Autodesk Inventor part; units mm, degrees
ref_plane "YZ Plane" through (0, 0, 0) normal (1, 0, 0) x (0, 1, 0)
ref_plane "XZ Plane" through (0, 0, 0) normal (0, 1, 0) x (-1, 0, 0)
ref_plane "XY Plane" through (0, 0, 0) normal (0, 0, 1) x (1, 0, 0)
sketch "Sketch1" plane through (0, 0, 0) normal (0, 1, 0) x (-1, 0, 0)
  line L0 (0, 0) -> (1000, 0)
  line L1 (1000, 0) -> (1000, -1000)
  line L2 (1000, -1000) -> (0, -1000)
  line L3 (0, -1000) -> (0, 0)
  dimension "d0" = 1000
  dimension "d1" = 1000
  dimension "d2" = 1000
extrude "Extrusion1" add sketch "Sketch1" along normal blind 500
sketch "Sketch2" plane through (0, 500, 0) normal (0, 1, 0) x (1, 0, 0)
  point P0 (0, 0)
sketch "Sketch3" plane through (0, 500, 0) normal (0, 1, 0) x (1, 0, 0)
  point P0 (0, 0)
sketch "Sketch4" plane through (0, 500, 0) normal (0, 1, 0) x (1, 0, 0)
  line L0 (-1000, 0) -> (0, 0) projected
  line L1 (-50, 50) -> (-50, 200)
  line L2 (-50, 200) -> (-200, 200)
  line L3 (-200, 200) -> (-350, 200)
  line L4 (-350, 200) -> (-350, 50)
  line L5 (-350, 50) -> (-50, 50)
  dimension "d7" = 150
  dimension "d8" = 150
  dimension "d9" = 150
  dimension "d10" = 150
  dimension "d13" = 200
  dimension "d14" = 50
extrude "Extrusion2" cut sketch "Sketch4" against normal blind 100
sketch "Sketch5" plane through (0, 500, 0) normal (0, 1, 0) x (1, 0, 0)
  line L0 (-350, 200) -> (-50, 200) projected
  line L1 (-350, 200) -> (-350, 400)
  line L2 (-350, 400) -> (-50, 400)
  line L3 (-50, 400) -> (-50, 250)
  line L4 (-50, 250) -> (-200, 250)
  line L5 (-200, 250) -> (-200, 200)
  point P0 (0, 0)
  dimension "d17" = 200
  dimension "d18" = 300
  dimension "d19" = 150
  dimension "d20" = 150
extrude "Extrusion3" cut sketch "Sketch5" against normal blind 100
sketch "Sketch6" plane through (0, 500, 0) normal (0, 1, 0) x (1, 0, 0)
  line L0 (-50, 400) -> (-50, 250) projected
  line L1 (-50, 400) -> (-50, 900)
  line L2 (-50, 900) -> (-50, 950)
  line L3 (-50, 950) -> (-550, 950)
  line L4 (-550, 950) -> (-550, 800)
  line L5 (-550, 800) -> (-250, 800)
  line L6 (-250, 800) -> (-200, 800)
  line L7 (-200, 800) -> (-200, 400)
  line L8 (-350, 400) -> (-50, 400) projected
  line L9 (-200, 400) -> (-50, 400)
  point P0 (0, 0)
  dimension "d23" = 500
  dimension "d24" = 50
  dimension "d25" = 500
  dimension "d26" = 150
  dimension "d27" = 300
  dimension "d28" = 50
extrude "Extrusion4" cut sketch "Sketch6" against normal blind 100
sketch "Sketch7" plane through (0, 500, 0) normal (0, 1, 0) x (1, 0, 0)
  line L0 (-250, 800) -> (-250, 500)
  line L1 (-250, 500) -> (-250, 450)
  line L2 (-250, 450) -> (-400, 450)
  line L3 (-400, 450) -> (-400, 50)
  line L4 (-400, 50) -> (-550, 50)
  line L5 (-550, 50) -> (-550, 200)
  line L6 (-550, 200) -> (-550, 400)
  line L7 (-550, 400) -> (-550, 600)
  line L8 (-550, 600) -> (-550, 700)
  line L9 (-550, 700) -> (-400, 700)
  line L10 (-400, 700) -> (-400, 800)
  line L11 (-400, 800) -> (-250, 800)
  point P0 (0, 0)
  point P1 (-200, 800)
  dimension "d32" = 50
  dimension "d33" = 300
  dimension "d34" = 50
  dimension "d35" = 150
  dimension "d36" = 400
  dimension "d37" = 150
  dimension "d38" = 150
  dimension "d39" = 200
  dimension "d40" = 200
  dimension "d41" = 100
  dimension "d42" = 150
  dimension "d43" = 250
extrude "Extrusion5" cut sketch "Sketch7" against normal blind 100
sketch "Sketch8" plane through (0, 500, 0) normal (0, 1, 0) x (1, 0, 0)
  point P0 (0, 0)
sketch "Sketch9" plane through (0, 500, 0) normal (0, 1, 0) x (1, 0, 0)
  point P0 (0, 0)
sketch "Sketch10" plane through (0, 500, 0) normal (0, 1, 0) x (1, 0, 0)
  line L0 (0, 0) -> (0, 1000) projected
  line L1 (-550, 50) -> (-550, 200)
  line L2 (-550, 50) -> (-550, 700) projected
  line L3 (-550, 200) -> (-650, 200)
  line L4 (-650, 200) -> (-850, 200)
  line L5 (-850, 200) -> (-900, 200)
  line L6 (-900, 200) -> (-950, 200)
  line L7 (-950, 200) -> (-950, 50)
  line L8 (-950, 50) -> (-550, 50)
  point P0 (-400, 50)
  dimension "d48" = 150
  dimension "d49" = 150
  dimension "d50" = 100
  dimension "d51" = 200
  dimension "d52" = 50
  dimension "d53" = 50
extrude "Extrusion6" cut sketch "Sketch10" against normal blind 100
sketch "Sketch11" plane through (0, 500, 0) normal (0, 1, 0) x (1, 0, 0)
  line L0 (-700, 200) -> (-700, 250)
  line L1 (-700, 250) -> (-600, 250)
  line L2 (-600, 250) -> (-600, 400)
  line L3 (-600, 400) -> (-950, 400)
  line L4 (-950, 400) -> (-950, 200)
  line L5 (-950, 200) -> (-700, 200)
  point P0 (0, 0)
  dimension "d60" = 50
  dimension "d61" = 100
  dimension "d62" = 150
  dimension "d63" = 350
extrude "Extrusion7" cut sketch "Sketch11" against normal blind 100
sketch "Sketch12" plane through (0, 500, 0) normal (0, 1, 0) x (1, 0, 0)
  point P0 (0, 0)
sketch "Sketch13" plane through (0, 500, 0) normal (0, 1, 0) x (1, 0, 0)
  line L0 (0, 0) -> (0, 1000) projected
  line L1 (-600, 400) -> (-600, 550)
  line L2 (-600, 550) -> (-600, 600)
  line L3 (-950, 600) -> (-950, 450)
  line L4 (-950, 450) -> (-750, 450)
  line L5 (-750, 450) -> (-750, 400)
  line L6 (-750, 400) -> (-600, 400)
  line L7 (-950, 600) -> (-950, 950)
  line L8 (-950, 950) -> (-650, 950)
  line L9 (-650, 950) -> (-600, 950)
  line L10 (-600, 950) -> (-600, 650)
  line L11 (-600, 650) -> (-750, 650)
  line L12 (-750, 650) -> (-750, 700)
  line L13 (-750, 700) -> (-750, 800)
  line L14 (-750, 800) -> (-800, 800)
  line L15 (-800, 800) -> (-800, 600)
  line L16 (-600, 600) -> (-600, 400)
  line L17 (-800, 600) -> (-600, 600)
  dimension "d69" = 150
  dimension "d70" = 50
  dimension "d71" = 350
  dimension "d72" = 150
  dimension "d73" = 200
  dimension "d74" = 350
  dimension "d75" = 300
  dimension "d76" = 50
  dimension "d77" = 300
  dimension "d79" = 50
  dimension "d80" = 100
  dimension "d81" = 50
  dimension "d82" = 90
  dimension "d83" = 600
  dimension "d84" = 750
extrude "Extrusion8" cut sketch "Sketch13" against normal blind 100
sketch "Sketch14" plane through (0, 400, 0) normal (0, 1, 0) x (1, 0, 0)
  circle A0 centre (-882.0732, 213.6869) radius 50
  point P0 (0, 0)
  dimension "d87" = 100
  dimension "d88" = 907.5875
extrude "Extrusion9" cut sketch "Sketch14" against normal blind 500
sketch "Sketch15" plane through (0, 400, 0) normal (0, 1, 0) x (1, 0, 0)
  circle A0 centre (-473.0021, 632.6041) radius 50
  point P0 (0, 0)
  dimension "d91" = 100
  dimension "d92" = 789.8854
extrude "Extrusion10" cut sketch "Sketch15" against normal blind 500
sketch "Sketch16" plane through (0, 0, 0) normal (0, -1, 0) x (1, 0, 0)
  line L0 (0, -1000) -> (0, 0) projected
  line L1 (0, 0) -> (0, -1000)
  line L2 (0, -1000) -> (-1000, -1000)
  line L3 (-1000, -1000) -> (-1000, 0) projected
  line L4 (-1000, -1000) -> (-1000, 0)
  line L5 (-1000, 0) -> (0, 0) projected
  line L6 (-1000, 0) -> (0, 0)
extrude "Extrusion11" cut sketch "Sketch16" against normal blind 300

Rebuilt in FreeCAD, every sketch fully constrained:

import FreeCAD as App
import Part
import Sketcher
Q = App.Units.Quantity

doc = App.newDocument("Part")
body = doc.addObject("PartDesign::Body", "Body")

# Sketch on XZ plane
sketch1 = doc.addObject("Sketcher::SketchObject", "Sketch")
body.addObject(sketch1)
sketch1.AttachmentSupport = (doc.XZ_Plane, [""])
sketch1.MapMode = "FlatFace"
sketch1.addGeometry(Part.LineSegment(App.Vector(-1000, 0, 0), App.Vector(0, 0, 0)), False)
sketch1.addGeometry(Part.LineSegment(App.Vector(0, 0, 0), App.Vector(0, -1000, 0)), False)
sketch1.addGeometry(Part.LineSegment(App.Vector(0, -1000, 0), App.Vector(-1000, -1000, 0)), False)
sketch1.addGeometry(Part.LineSegment(App.Vector(-1000, -1000, 0), App.Vector(-1000, 0, 0)), False)
sketch1.addConstraint(Sketcher.Constraint("Coincident", 0, 2, 1, 1))
sketch1.addConstraint(Sketcher.Constraint("Coincident", 1, 2, 2, 1))
sketch1.addConstraint(Sketcher.Constraint("Coincident", 2, 2, 3, 1))
sketch1.addConstraint(Sketcher.Constraint("Coincident", 3, 2, 0, 1))
sketch1.addConstraint(Sketcher.Constraint("Horizontal", 0))
sketch1.addConstraint(Sketcher.Constraint("Vertical", 1))
sketch1.addConstraint(Sketcher.Constraint("Horizontal", 2))
sketch1.addConstraint(Sketcher.Constraint("Vertical", 3))
sketch1.addConstraint(Sketcher.Constraint("Coincident", 0, 2, -1, 1))
sketch1.addConstraint(Sketcher.Constraint("Equal", 2, 1))
sketch1.addConstraint(Sketcher.Constraint("DistanceX", 0, 1, 0, 2, Q("1000 mm")))
pad1 = doc.addObject("PartDesign::Pad", "Pad")
body.addObject(pad1)
pad1.Profile = sketch1
pad1.Length = 500
pad1.Reversed = True

# Sketch on XZ plane
sketch2 = doc.addObject("Sketcher::SketchObject", "Sketch001")
body.addObject(sketch2)
sketch2.AttachmentSupport = (doc.XZ_Plane, [""])
sketch2.MapMode = "FlatFace"
sketch2.AttachmentOffset = App.Placement(App.Vector(0, 0, -500), App.Rotation())
sketch2.addGeometry(Part.LineSegment(App.Vector(-350, -50, 0), App.Vector(-50, -50, 0)), False)
sketch2.addGeometry(Part.LineSegment(App.Vector(-50, -50, 0), App.Vector(-50, -200, 0)), False)
sketch2.addGeometry(Part.LineSegment(App.Vector(-50, -200, 0), App.Vector(-350, -200, 0)), False)
sketch2.addGeometry(Part.LineSegment(App.Vector(-350, -200, 0), App.Vector(-350, -50, 0)), False)
sketch2.addConstraint(Sketcher.Constraint("Coincident", 0, 2, 1, 1))
sketch2.addConstraint(Sketcher.Constraint("Coincident", 1, 2, 2, 1))
sketch2.addConstraint(Sketcher.Constraint("Coincident", 2, 2, 3, 1))
sketch2.addConstraint(Sketcher.Constraint("Coincident", 3, 2, 0, 1))
sketch2.addConstraint(Sketcher.Constraint("Horizontal", 0))
sketch2.addConstraint(Sketcher.Constraint("Vertical", 1))
sketch2.addConstraint(Sketcher.Constraint("Horizontal", 2))
sketch2.addConstraint(Sketcher.Constraint("Vertical", 3))
sketch2.addConstraint(Sketcher.Constraint("DistanceY", 1, 2, 1, 1, Q("150 mm")))
sketch2.addConstraint(Sketcher.Constraint("DistanceX", 0, 2, -1, 1, Q("50 mm")))
sketch2.addConstraint(Sketcher.Constraint("DistanceY", 0, 2, -1, 1, Q("50 mm")))
sketch2.addConstraint(Sketcher.Constraint("DistanceX", 0, 1, 0, 2, Q("300 mm")))
pocket1 = doc.addObject("PartDesign::Pocket", "Pocket")
body.addObject(pocket1)
pocket1.Profile = sketch2
pocket1.Length = 100
pocket1.Reversed = True

# Sketch on XZ plane
sketch3 = doc.addObject("Sketcher::SketchObject", "Sketch002")
body.addObject(sketch3)
sketch3.AttachmentSupport = (doc.XZ_Plane, [""])
sketch3.MapMode = "FlatFace"
sketch3.AttachmentOffset = App.Placement(App.Vector(0, 0, -500), App.Rotation())
sketch3.addGeometry(Part.LineSegment(App.Vector(-350, -400, 0), App.Vector(-350, -200, 0)), False)
sketch3.addGeometry(Part.LineSegment(App.Vector(-350, -200, 0), App.Vector(-200, -200, 0)), False)
sketch3.addGeometry(Part.LineSegment(App.Vector(-200, -200, 0), App.Vector(-200, -250, 0)), False)
sketch3.addGeometry(Part.LineSegment(App.Vector(-200, -250, 0), App.Vector(-50, -250, 0)), False)
sketch3.addGeometry(Part.LineSegment(App.Vector(-50, -250, 0), App.Vector(-50, -400, 0)), False)
sketch3.addGeometry(Part.LineSegment(App.Vector(-50, -400, 0), App.Vector(-350, -400, 0)), False)
sketch3.addConstraint(Sketcher.Constraint("Coincident", 0, 2, 1, 1))
sketch3.addConstraint(Sketcher.Constraint("Coincident", 1, 2, 2, 1))
sketch3.addConstraint(Sketcher.Constraint("Coincident", 2, 2, 3, 1))
sketch3.addConstraint(Sketcher.Constraint("Coincident", 3, 2, 4, 1))
sketch3.addConstraint(Sketcher.Constraint("Coincident", 4, 2, 5, 1))
sketch3.addConstraint(Sketcher.Constraint("Coincident", 5, 2, 0, 1))
sketch3.addConstraint(Sketcher.Constraint("Vertical", 0))
sketch3.addConstraint(Sketcher.Constraint("Horizontal", 1))
sketch3.addConstraint(Sketcher.Constraint("Vertical", 2))
sketch3.addConstraint(Sketcher.Constraint("Horizontal", 3))
sketch3.addConstraint(Sketcher.Constraint("Vertical", 4))
sketch3.addConstraint(Sketcher.Constraint("Horizontal", 5))
sketch3.addConstraint(Sketcher.Constraint("Equal", 1, 3))
sketch3.addConstraint(Sketcher.Constraint("Equal", 3, 4))
sketch3.addConstraint(Sketcher.Constraint("DistanceX", 1, 1, 1, 2, Q("150 mm")))
sketch3.addConstraint(Sketcher.Constraint("DistanceY", 0, 1, 0, 2, Q("200 mm")))
sketch3.addConstraint(Sketcher.Constraint("DistanceY", 0, 2, -1, 1, Q("200 mm")))
sketch3.addConstraint(Sketcher.Constraint("DistanceX", 1, 2, -1, 1, Q("200 mm")))
pocket2 = doc.addObject("PartDesign::Pocket", "Pocket001")
body.addObject(pocket2)
pocket2.Profile = sketch3
pocket2.Length = 100
pocket2.Reversed = True

# Sketch on XZ plane
sketch4 = doc.addObject("Sketcher::SketchObject", "Sketch003")
body.addObject(sketch4)
sketch4.AttachmentSupport = (doc.XZ_Plane, [""])
sketch4.MapMode = "FlatFace"
sketch4.AttachmentOffset = App.Placement(App.Vector(0, 0, -500), App.Rotation())
sketch4.addGeometry(Part.LineSegment(App.Vector(-200, -400, 0), App.Vector(-50, -400, 0)), False)
sketch4.addGeometry(Part.LineSegment(App.Vector(-50, -400, 0), App.Vector(-50, -950, 0)), False)
sketch4.addGeometry(Part.LineSegment(App.Vector(-50, -950, 0), App.Vector(-550, -950, 0)), False)
sketch4.addGeometry(Part.LineSegment(App.Vector(-550, -950, 0), App.Vector(-550, -800, 0)), False)
sketch4.addGeometry(Part.LineSegment(App.Vector(-550, -800, 0), App.Vector(-200, -800, 0)), False)
sketch4.addGeometry(Part.LineSegment(App.Vector(-200, -800, 0), App.Vector(-200, -400, 0)), False)
sketch4.addConstraint(Sketcher.Constraint("Coincident", 0, 2, 1, 1))
sketch4.addConstraint(Sketcher.Constraint("Coincident", 1, 2, 2, 1))
sketch4.addConstraint(Sketcher.Constraint("Coincident", 2, 2, 3, 1))
sketch4.addConstraint(Sketcher.Constraint("Coincident", 3, 2, 4, 1))
sketch4.addConstraint(Sketcher.Constraint("Coincident", 4, 2, 5, 1))
sketch4.addConstraint(Sketcher.Constraint("Coincident", 5, 2, 0, 1))
sketch4.addConstraint(Sketcher.Constraint("Horizontal", 0))
sketch4.addConstraint(Sketcher.Constraint("Vertical", 1))
sketch4.addConstraint(Sketcher.Constraint("Horizontal", 2))
sketch4.addConstraint(Sketcher.Constraint("Vertical", 3))
sketch4.addConstraint(Sketcher.Constraint("Horizontal", 4))
sketch4.addConstraint(Sketcher.Constraint("Vertical", 5))
sketch4.addConstraint(Sketcher.Constraint("Equal", 0, 3))
sketch4.addConstraint(Sketcher.Constraint("DistanceX", 0, 1, 0, 2, Q("150 mm")))
sketch4.addConstraint(Sketcher.Constraint("DistanceX", 2, 2, 2, 1, Q("500 mm")))
sketch4.addConstraint(Sketcher.Constraint("DistanceX", 0, 2, -1, 1, Q("50 mm")))
sketch4.addConstraint(Sketcher.Constraint("DistanceY", 1, 2, 1, 1, Q("550 mm")))
sketch4.addConstraint(Sketcher.Constraint("DistanceY", 0, 2, -1, 1, Q("400 mm")))
pocket3 = doc.addObject("PartDesign::Pocket", "Pocket002")
body.addObject(pocket3)
pocket3.Profile = sketch4
pocket3.Length = 100
pocket3.Reversed = True

# Sketch on XZ plane
sketch5 = doc.addObject("Sketcher::SketchObject", "Sketch004")
body.addObject(sketch5)
sketch5.AttachmentSupport = (doc.XZ_Plane, [""])
sketch5.MapMode = "FlatFace"
sketch5.AttachmentOffset = App.Placement(App.Vector(0, 0, -500), App.Rotation())
sketch5.addGeometry(Part.LineSegment(App.Vector(-250, -450, 0), App.Vector(-250, -800, 0)), False)
sketch5.addGeometry(Part.LineSegment(App.Vector(-250, -800, 0), App.Vector(-400, -800, 0)), False)
sketch5.addGeometry(Part.LineSegment(App.Vector(-400, -800, 0), App.Vector(-400, -700, 0)), False)
sketch5.addGeometry(Part.LineSegment(App.Vector(-400, -700, 0), App.Vector(-550, -700, 0)), False)
sketch5.addGeometry(Part.LineSegment(App.Vector(-550, -700, 0), App.Vector(-550, -50, 0)), False)
sketch5.addGeometry(Part.LineSegment(App.Vector(-550, -50, 0), App.Vector(-400, -50, 0)), False)
sketch5.addGeometry(Part.LineSegment(App.Vector(-400, -50, 0), App.Vector(-400, -450, 0)), False)
sketch5.addGeometry(Part.LineSegment(App.Vector(-400, -450, 0), App.Vector(-250, -450, 0)), False)
sketch5.addConstraint(Sketcher.Constraint("Coincident", 0, 2, 1, 1))
sketch5.addConstraint(Sketcher.Constraint("Coincident", 1, 2, 2, 1))
sketch5.addConstraint(Sketcher.Constraint("Coincident", 2, 2, 3, 1))
sketch5.addConstraint(Sketcher.Constraint("Coincident", 3, 2, 4, 1))
sketch5.addConstraint(Sketcher.Constraint("Coincident", 4, 2, 5, 1))
sketch5.addConstraint(Sketcher.Constraint("Coincident", 5, 2, 6, 1))
sketch5.addConstraint(Sketcher.Constraint("Coincident", 6, 2, 7, 1))
sketch5.addConstraint(Sketcher.Constraint("Coincident", 7, 2, 0, 1))
sketch5.addConstraint(Sketcher.Constraint("Vertical", 0))
sketch5.addConstraint(Sketcher.Constraint("Horizontal", 1))
sketch5.addConstraint(Sketcher.Constraint("Vertical", 2))
sketch5.addConstraint(Sketcher.Constraint("Horizontal", 3))
sketch5.addConstraint(Sketcher.Constraint("Vertical", 4))
sketch5.addConstraint(Sketcher.Constraint("Horizontal", 5))
sketch5.addConstraint(Sketcher.Constraint("Vertical", 6))
sketch5.addConstraint(Sketcher.Constraint("Horizontal", 7))
sketch5.addConstraint(Sketcher.Constraint("Vertical", 2, 2, 5, 2))
sketch5.addConstraint(Sketcher.Constraint("Equal", 1, 3))
sketch5.addConstraint(Sketcher.Constraint("DistanceX", 1, 2, 1, 1, Q("150 mm")))
sketch5.addConstraint(Sketcher.Constraint("DistanceY", 2, 1, 2, 2, Q("100 mm")))
sketch5.addConstraint(Sketcher.Constraint("DistanceY", 6, 2, 6, 1, Q("400 mm")))
sketch5.addConstraint(Sketcher.Constraint("DistanceX", 0, 2, -1, 1, Q("250 mm")))
sketch5.addConstraint(Sketcher.Constraint("DistanceY", 4, 2, -1, 1, Q("50 mm")))
sketch5.addConstraint(Sketcher.Constraint("DistanceY", 2, 2, 6, 2, Q("250 mm")))
pocket4 = doc.addObject("PartDesign::Pocket", "Pocket003")
body.addObject(pocket4)
pocket4.Profile = sketch5
pocket4.Length = 100
pocket4.Reversed = True

# Sketch on XZ plane
sketch6 = doc.addObject("Sketcher::SketchObject", "Sketch005")
body.addObject(sketch6)
sketch6.AttachmentSupport = (doc.XZ_Plane, [""])
sketch6.MapMode = "FlatFace"
sketch6.AttachmentOffset = App.Placement(App.Vector(0, 0, -500), App.Rotation())
sketch6.addGeometry(Part.LineSegment(App.Vector(-950, -50, 0), App.Vector(-550, -50, 0)), False)
sketch6.addGeometry(Part.LineSegment(App.Vector(-550, -50, 0), App.Vector(-550, -200, 0)), False)
sketch6.addGeometry(Part.LineSegment(App.Vector(-550, -200, 0), App.Vector(-950, -200, 0)), False)
sketch6.addGeometry(Part.LineSegment(App.Vector(-950, -200, 0), App.Vector(-950, -50, 0)), False)
sketch6.addConstraint(Sketcher.Constraint("Coincident", 0, 2, 1, 1))
sketch6.addConstraint(Sketcher.Constraint("Coincident", 1, 2, 2, 1))
sketch6.addConstraint(Sketcher.Constraint("Coincident", 2, 2, 3, 1))
sketch6.addConstraint(Sketcher.Constraint("Coincident", 3, 2, 0, 1))
sketch6.addConstraint(Sketcher.Constraint("Horizontal", 0))
sketch6.addConstraint(Sketcher.Constraint("Vertical", 1))
sketch6.addConstraint(Sketcher.Constraint("Horizontal", 2))
sketch6.addConstraint(Sketcher.Constraint("Vertical", 3))
sketch6.addConstraint(Sketcher.Constraint("DistanceY", 1, 2, 1, 1, Q("150 mm")))
sketch6.addConstraint(Sketcher.Constraint("DistanceY", 0, 2, -1, 1, Q("50 mm")))
sketch6.addConstraint(Sketcher.Constraint("DistanceX", 0, 1, 0, 2, Q("400 mm")))
sketch6.addConstraint(Sketcher.Constraint("DistanceX", 0, 2, -1, 1, Q("550 mm")))
pocket5 = doc.addObject("PartDesign::Pocket", "Pocket004")
body.addObject(pocket5)
pocket5.Profile = sketch6
pocket5.Length = 100
pocket5.Reversed = True

# Sketch on XZ plane
sketch7 = doc.addObject("Sketcher::SketchObject", "Sketch006")
body.addObject(sketch7)
sketch7.AttachmentSupport = (doc.XZ_Plane, [""])
sketch7.MapMode = "FlatFace"
sketch7.AttachmentOffset = App.Placement(App.Vector(0, 0, -500), App.Rotation())
sketch7.addGeometry(Part.LineSegment(App.Vector(-950, -200, 0), App.Vector(-700, -200, 0)), False)
sketch7.addGeometry(Part.LineSegment(App.Vector(-700, -200, 0), App.Vector(-700, -250, 0)), False)
sketch7.addGeometry(Part.LineSegment(App.Vector(-700, -250, 0), App.Vector(-600, -250, 0)), False)
sketch7.addGeometry(Part.LineSegment(App.Vector(-600, -250, 0), App.Vector(-600, -400, 0)), False)
sketch7.addGeometry(Part.LineSegment(App.Vector(-600, -400, 0), App.Vector(-950, -400, 0)), False)
sketch7.addGeometry(Part.LineSegment(App.Vector(-950, -400, 0), App.Vector(-950, -200, 0)), False)
sketch7.addConstraint(Sketcher.Constraint("Coincident", 0, 2, 1, 1))
sketch7.addConstraint(Sketcher.Constraint("Coincident", 1, 2, 2, 1))
sketch7.addConstraint(Sketcher.Constraint("Coincident", 2, 2, 3, 1))
sketch7.addConstraint(Sketcher.Constraint("Coincident", 3, 2, 4, 1))
sketch7.addConstraint(Sketcher.Constraint("Coincident", 4, 2, 5, 1))
sketch7.addConstraint(Sketcher.Constraint("Coincident", 5, 2, 0, 1))
sketch7.addConstraint(Sketcher.Constraint("Horizontal", 0))
sketch7.addConstraint(Sketcher.Constraint("Vertical", 1))
sketch7.addConstraint(Sketcher.Constraint("Horizontal", 2))
sketch7.addConstraint(Sketcher.Constraint("Vertical", 3))
sketch7.addConstraint(Sketcher.Constraint("Horizontal", 4))
sketch7.addConstraint(Sketcher.Constraint("Vertical", 5))
sketch7.addConstraint(Sketcher.Constraint("DistanceX", 2, 1, 2, 2, Q("100 mm")))
sketch7.addConstraint(Sketcher.Constraint("DistanceX", 4, 2, 4, 1, Q("350 mm")))
sketch7.addConstraint(Sketcher.Constraint("DistanceY", 1, 2, 1, 1, Q("50 mm")))
sketch7.addConstraint(Sketcher.Constraint("DistanceY", 3, 2, 3, 1, Q("150 mm")))
sketch7.addConstraint(Sketcher.Constraint("DistanceX", 0, 2, -1, 1, Q("700 mm")))
sketch7.addConstraint(Sketcher.Constraint("DistanceY", 0, 2, -1, 1, Q("200 mm")))
pocket6 = doc.addObject("PartDesign::Pocket", "Pocket005")
body.addObject(pocket6)
pocket6.Profile = sketch7
pocket6.Length = 100
pocket6.Reversed = True

# Sketch on XZ plane
sketch8 = doc.addObject("Sketcher::SketchObject", "Sketch007")
body.addObject(sketch8)
sketch8.AttachmentSupport = (doc.XZ_Plane, [""])
sketch8.MapMode = "FlatFace"
sketch8.AttachmentOffset = App.Placement(App.Vector(0, 0, -500), App.Rotation())
sketch8.addGeometry(Part.LineSegment(App.Vector(-750, -400, 0), App.Vector(-600, -400, 0)), False)
sketch8.addGeometry(Part.LineSegment(App.Vector(-600, -400, 0), App.Vector(-600, -600, 0)), False)
sketch8.addGeometry(Part.LineSegment(App.Vector(-600, -600, 0), App.Vector(-800, -600, 0)), False)
sketch8.addGeometry(Part.LineSegment(App.Vector(-800, -600, 0), App.Vector(-800, -800, 0)), False)
sketch8.addGeometry(Part.LineSegment(App.Vector(-800, -800, 0), App.Vector(-750, -800, 0)), False)
sketch8.addGeometry(Part.LineSegment(App.Vector(-750, -800, 0), App.Vector(-750, -650, 0)), False)
sketch8.addGeometry(Part.LineSegment(App.Vector(-750, -650, 0), App.Vector(-600, -650, 0)), False)
sketch8.addGeometry(Part.LineSegment(App.Vector(-600, -650, 0), App.Vector(-600, -950, 0)), False)
sketch8.addGeometry(Part.LineSegment(App.Vector(-600, -950, 0), App.Vector(-950, -950, 0)), False)
sketch8.addGeometry(Part.LineSegment(App.Vector(-950, -950, 0), App.Vector(-950, -450, 0)), False)
sketch8.addGeometry(Part.LineSegment(App.Vector(-950, -450, 0), App.Vector(-750, -450, 0)), False)
sketch8.addGeometry(Part.LineSegment(App.Vector(-750, -450, 0), App.Vector(-750, -400, 0)), False)
sketch8.addConstraint(Sketcher.Constraint("Coincident", 0, 2, 1, 1))
sketch8.addConstraint(Sketcher.Constraint("Coincident", 1, 2, 2, 1))
sketch8.addConstraint(Sketcher.Constraint("Coincident", 2, 2, 3, 1))
sketch8.addConstraint(Sketcher.Constraint("Coincident", 3, 2, 4, 1))
sketch8.addConstraint(Sketcher.Constraint("Coincident", 4, 2, 5, 1))
sketch8.addConstraint(Sketcher.Constraint("Coincident", 5, 2, 6, 1))
sketch8.addConstraint(Sketcher.Constraint("Coincident", 6, 2, 7, 1))
sketch8.addConstraint(Sketcher.Constraint("Coincident", 7, 2, 8, 1))
sketch8.addConstraint(Sketcher.Constraint("Coincident", 8, 2, 9, 1))
sketch8.addConstraint(Sketcher.Constraint("Coincident", 9, 2, 10, 1))
sketch8.addConstraint(Sketcher.Constraint("Coincident", 10, 2, 11, 1))
sketch8.addConstraint(Sketcher.Constraint("Coincident", 11, 2, 0, 1))
sketch8.addConstraint(Sketcher.Constraint("Horizontal", 0))
sketch8.addConstraint(Sketcher.Constraint("Vertical", 1))
sketch8.addConstraint(Sketcher.Constraint("Horizontal", 2))
sketch8.addConstraint(Sketcher.Constraint("Vertical", 3))
sketch8.addConstraint(Sketcher.Constraint("Horizontal", 4))
sketch8.addConstraint(Sketcher.Constraint("Vertical", 5))
sketch8.addConstraint(Sketcher.Constraint("Horizontal", 6))
sketch8.addConstraint(Sketcher.Constraint("Vertical", 7))
sketch8.addConstraint(Sketcher.Constraint("Horizontal", 8))
sketch8.addConstraint(Sketcher.Constraint("Vertical", 9))
sketch8.addConstraint(Sketcher.Constraint("Horizontal", 10))
sketch8.addConstraint(Sketcher.Constraint("Vertical", 11))
sketch8.addConstraint(Sketcher.Constraint("Vertical", 1, 2, 6, 2))
sketch8.addConstraint(Sketcher.Constraint("Vertical", 5, 2, 10, 2))
sketch8.addConstraint(Sketcher.Constraint("Equal", 2, 10))
sketch8.addConstraint(Sketcher.Constraint("Equal", 10, 1))
sketch8.addConstraint(Sketcher.Constraint("Equal", 1, 3))
sketch8.addConstraint(Sketcher.Constraint("Equal", 6, 5))
sketch8.addConstraint(Sketcher.Constraint("Equal", 4, 11))
sketch8.addConstraint(Sketcher.Constraint("DistanceX", 0, 1, 0, 2, Q("150 mm")))
sketch8.addConstraint(Sketcher.Constraint("DistanceX", 2, 2, 2, 1, Q("200 mm")))
sketch8.addConstraint(Sketcher.Constraint("DistanceY", 7, 2, 7, 1, Q("300 mm")))
sketch8.addConstraint(Sketcher.Constraint("DistanceX", 0, 2, -1, 1, Q("600 mm")))
sketch8.addConstraint(Sketcher.Constraint("DistanceY", 1, 2, -1, 1, Q("600 mm")))
pocket7 = doc.addObject("PartDesign::Pocket", "Pocket006")
body.addObject(pocket7)
pocket7.Profile = sketch8
pocket7.Length = 100
pocket7.Reversed = True

# Sketch on XZ plane
sketch9 = doc.addObject("Sketcher::SketchObject", "Sketch008")
body.addObject(sketch9)
sketch9.AttachmentSupport = (doc.XZ_Plane, [""])
sketch9.MapMode = "FlatFace"
sketch9.AttachmentOffset = App.Placement(App.Vector(0, 0, -400), App.Rotation())
sketch9.addGeometry(Part.Circle(App.Vector(-882, -214, 0), App.Vector(0, 0, 1), 50), False)
sketch9.addConstraint(Sketcher.Constraint("Diameter", 0, Q("100 mm")))
sketch9.addConstraint(Sketcher.Constraint("DistanceY", 0, 3, -1, 1, Q("213.687 mm")))
sketch9.addConstraint(Sketcher.Constraint("DistanceX", 0, 3, -1, 1, Q("882.0732 mm")))
pocket8 = doc.addObject("PartDesign::Pocket", "Pocket007")
body.addObject(pocket8)
pocket8.Profile = sketch9
pocket8.Length = 500
pocket8.Reversed = True

# Sketch on XZ plane
sketch10 = doc.addObject("Sketcher::SketchObject", "Sketch009")
body.addObject(sketch10)
sketch10.AttachmentSupport = (doc.XZ_Plane, [""])
sketch10.MapMode = "FlatFace"
sketch10.AttachmentOffset = App.Placement(App.Vector(0, 0, -400), App.Rotation())
sketch10.addGeometry(Part.Circle(App.Vector(-473, -633, 0), App.Vector(0, 0, 1), 50), False)
sketch10.addConstraint(Sketcher.Constraint("Diameter", 0, Q("100 mm")))
sketch10.addConstraint(Sketcher.Constraint("DistanceX", 0, 3, -1, 1, Q("473.002 mm")))
sketch10.addConstraint(Sketcher.Constraint("DistanceY", 0, 3, -1, 1, Q("632.604 mm")))
pocket9 = doc.addObject("PartDesign::Pocket", "Pocket008")
body.addObject(pocket9)
pocket9.Profile = sketch10
pocket9.Length = 500
pocket9.Reversed = True

# Sketch on XZ plane
sketch11 = doc.addObject("Sketcher::SketchObject", "Sketch010")
body.addObject(sketch11)
sketch11.AttachmentSupport = (doc.XZ_Plane, [""])
sketch11.MapMode = "FlatFace"
sketch11.addGeometry(Part.LineSegment(App.Vector(-1000, -1000, 0), App.Vector(0, -1000, 0)), False)
sketch11.addGeometry(Part.LineSegment(App.Vector(0, -1000, 0), App.Vector(0, 0, 0)), False)
sketch11.addGeometry(Part.LineSegment(App.Vector(0, 0, 0), App.Vector(-1000, 0, 0)), False)
sketch11.addGeometry(Part.LineSegment(App.Vector(-1000, 0, 0), App.Vector(-1000, -1000, 0)), False)
sketch11.addConstraint(Sketcher.Constraint("Coincident", 0, 2, 1, 1))
sketch11.addConstraint(Sketcher.Constraint("Coincident", 1, 2, 2, 1))
sketch11.addConstraint(Sketcher.Constraint("Coincident", 2, 2, 3, 1))
sketch11.addConstraint(Sketcher.Constraint("Coincident", 3, 2, 0, 1))
sketch11.addConstraint(Sketcher.Constraint("Horizontal", 0))
sketch11.addConstraint(Sketcher.Constraint("Vertical", 1))
sketch11.addConstraint(Sketcher.Constraint("Horizontal", 2))
sketch11.addConstraint(Sketcher.Constraint("Vertical", 3))
sketch11.addConstraint(Sketcher.Constraint("Coincident", 1, 2, -1, 1))
sketch11.addConstraint(Sketcher.Constraint("Equal", 2, 1))
sketch11.addConstraint(Sketcher.Constraint("DistanceX", 0, 1, 0, 2, Q("1000 mm")))
pocket10 = doc.addObject("PartDesign::Pocket", "Pocket009")
body.addObject(pocket10)
pocket10.Profile = sketch11
pocket10.Length = 300

doc.recompute()
